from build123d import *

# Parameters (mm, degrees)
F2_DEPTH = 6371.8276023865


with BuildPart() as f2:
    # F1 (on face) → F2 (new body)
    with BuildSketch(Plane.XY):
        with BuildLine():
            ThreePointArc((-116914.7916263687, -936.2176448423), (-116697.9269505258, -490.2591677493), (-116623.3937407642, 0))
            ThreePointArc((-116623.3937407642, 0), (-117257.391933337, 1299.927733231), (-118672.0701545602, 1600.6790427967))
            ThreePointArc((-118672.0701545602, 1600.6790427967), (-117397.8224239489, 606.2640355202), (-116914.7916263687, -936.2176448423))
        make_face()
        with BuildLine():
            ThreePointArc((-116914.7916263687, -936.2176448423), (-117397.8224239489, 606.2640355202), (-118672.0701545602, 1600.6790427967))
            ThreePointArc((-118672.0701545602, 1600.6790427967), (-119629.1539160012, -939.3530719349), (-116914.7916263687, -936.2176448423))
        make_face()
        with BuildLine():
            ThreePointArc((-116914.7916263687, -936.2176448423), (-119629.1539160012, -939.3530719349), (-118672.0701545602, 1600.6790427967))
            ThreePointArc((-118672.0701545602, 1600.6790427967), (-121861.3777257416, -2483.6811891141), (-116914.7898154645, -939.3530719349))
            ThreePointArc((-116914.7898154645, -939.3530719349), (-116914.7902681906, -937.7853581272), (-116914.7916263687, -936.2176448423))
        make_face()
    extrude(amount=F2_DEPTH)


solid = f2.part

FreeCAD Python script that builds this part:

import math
import FreeCAD as App
import Part
import Sketcher
Q = App.Units.Quantity

doc = App.newDocument("Part")
body = doc.addObject("PartDesign::Body", "Body")

# Sketch on XY plane
sketch1 = body.newObject("Sketcher::SketchObject", "Sketch")
sketch1.AttachmentSupport = (doc.getObject("XY_Plane"), [""])
sketch1.MapMode = "FlatFace"
sketch1.addGeometry([
    Part.ArcOfCircle(Part.Circle(App.Vector(-118273.05603, 0, 0), App.Vector(0, 0, 1), 1649.66229), math.radians(-34.577523), math.radians(103.997305)),
    Part.ArcOfCircle(Part.Circle(App.Vector(-119629.153916, -939.353072, 0), App.Vector(0, 0, 1), 2714.364101), math.radians(69.353598), math.radians(360)),
    Part.ArcOfCircle(Part.Circle(App.Vector(-119629.153916, -939.353072, 0), App.Vector(0, 0, 1), 2714.364101), math.radians(0), math.radians(0.066184)),
], False)
sketch1.addConstraint([
    Sketcher.Constraint("Coincident", 0, 2, 1, 1),
    Sketcher.Constraint("Coincident", 1, 2, 2, 1),
    Sketcher.Constraint("Coincident", 2, 2, 0, 1),
    Sketcher.Constraint("Coincident", 2, 3, 1, 3),
    Sketcher.Constraint("PointOnObject", 0, 3, -1),
    Sketcher.Constraint("Horizontal", 2, 3, 1, 2),
    Sketcher.Constraint("Radius", 1, Q("2714.364101 mm")),
    Sketcher.Constraint("Radius", 0, Q("1649.66229 mm")),
    Sketcher.Constraint("DistanceX", 0, 3, -1, 1, Q("118273.05603 mm")),
    Sketcher.Constraint("DistanceY", 1, 3, -1, 1, Q("939.353072 mm")),
    Sketcher.Constraint("DistanceX", 1, 3, -1, 1, Q("119629.153916 mm")),
])
pad1 = body.newObject("PartDesign::Pad", "Pad")
pad1.Profile = sketch1
pad1.Length = 6371.827602

doc.recompute()
